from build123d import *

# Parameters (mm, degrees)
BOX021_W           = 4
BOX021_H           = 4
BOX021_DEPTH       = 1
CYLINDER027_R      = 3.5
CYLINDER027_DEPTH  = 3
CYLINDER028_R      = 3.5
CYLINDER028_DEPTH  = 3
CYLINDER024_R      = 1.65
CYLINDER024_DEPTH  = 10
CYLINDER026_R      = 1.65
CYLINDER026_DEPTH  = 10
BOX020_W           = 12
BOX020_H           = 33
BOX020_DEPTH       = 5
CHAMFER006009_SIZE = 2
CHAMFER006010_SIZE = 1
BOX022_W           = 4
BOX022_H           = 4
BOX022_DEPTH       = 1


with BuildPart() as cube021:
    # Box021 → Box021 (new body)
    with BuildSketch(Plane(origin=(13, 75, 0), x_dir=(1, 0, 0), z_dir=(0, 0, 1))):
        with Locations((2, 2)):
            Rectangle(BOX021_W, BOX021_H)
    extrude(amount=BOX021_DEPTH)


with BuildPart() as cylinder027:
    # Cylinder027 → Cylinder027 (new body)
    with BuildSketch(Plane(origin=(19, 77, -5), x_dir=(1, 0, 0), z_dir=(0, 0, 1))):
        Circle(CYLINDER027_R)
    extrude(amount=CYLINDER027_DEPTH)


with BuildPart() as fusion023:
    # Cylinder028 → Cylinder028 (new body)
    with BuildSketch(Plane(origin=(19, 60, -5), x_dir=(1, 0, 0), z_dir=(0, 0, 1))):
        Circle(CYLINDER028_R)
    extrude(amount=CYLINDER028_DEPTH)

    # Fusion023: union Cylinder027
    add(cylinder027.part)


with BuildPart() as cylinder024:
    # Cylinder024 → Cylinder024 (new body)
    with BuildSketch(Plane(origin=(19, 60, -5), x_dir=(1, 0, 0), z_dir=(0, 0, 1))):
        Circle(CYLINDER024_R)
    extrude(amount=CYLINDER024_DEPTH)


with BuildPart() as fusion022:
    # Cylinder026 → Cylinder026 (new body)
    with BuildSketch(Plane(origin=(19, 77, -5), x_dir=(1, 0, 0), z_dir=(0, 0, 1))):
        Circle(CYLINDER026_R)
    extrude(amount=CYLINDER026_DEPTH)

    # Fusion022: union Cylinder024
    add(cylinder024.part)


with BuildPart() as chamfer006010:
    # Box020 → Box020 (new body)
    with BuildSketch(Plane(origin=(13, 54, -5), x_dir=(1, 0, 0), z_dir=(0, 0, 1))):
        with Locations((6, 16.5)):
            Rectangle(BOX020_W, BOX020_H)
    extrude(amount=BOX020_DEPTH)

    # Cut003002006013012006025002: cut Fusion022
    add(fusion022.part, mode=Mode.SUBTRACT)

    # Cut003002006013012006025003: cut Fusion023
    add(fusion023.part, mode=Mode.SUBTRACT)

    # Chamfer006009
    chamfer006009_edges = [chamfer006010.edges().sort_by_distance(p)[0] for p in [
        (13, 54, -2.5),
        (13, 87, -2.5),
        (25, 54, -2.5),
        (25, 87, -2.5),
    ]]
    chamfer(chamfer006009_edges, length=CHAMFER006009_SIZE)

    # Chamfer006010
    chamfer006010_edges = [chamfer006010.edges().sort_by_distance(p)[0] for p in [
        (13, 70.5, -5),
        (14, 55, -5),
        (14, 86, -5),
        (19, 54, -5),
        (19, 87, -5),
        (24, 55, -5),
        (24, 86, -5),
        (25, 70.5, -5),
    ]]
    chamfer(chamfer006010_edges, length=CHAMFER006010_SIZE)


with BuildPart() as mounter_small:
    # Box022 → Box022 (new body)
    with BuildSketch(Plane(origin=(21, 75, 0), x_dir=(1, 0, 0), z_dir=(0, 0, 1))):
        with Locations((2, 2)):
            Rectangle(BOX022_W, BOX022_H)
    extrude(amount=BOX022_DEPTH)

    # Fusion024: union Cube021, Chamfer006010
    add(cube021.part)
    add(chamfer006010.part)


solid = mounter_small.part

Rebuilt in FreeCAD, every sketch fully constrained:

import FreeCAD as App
import Part
import Sketcher
from FreeCAD import Vector
Q = App.Units.Quantity


def edges_at(feature, points):
    """Names of the edges that pass closest to the given points."""
    edges = feature.Shape.Edges
    near = lambda p: min(range(len(edges)), key=lambda i: edges[i].distToShape(Part.Vertex(*p))[0])
    return sorted({f"Edge{near(p) + 1}" for p in points})


def add_polygon(sketch, points):
    """Adds a closed chain of lines whose ends are joined by coincident constraints."""
    first, n = sketch.GeometryCount, len(points)
    for a, b in zip(points, points[1:] + points[:1]):
        sketch.addGeometry(Part.LineSegment(App.Vector(*a, 0), App.Vector(*b, 0)), False)
    for i in range(n):
        sketch.addConstraint(Sketcher.Constraint("Coincident", first + i, 2, first + (i + 1) % n, 1))

doc = App.newDocument("Part")
body = doc.addObject("PartDesign::Body", "Body")

sketch1 = doc.addObject("Sketcher::SketchObject", "Sketch")
body.addObject(sketch1)
sketch1.AttachmentSupport = (doc.XY_Plane, [""])
sketch1.MapMode = "FlatFace"
add_polygon(sketch1, [(13, 79), (13, 75), (17, 75), (17, 79)])
sketch1.addConstraint([
    Sketcher.Constraint("Vertical", 0),
    Sketcher.Constraint("Horizontal", 1),
    Sketcher.Constraint("Vertical", 2),
    Sketcher.Constraint("Horizontal", 3),
    Sketcher.Constraint("Equal", 3, 0),
    Sketcher.Constraint("DistanceX", 1, 1, 1, 2, Q("4 mm")),
    Sketcher.Constraint("DistanceX", -1, 1, 0, 2, Q("13 mm")),
    Sketcher.Constraint("DistanceY", -1, 1, 0, 2, Q("75 mm")),
])
pad1 = doc.addObject("PartDesign::Pad", "Pad")
body.addObject(pad1)
pad1.Profile = sketch1
pad1.Length = 1
body2 = doc.addObject("PartDesign::Body", "Body001")

sketch2 = doc.addObject("Sketcher::SketchObject", "Sketch001")
body2.addObject(sketch2)
sketch2.AttachmentSupport = (doc.getObject("XY_Plane001"), [""])
sketch2.MapMode = "FlatFace"
sketch2.AttachmentOffset = App.Placement(Vector(0, 0, -5), App.Rotation())
sketch2.addGeometry(Part.Circle(Vector(19, 77, 0), Vector(0, 0, 1), 3.5), False)
sketch2.addConstraint([
    Sketcher.Constraint("Diameter", 0, Q("7 mm")),
    Sketcher.Constraint("DistanceX", -1, 1, 0, 3, Q("19 mm")),
    Sketcher.Constraint("DistanceY", -1, 1, 0, 3, Q("77 mm")),
])
pad2 = doc.addObject("PartDesign::Pad", "Pad001")
body2.addObject(pad2)
pad2.Profile = sketch2
pad2.Length = 3
body3 = doc.addObject("PartDesign::Body", "Body002")
body3.AllowCompound = True

sketch3 = doc.addObject("Sketcher::SketchObject", "Sketch002")
body3.addObject(sketch3)
sketch3.AttachmentSupport = (doc.getObject("XY_Plane002"), [""])
sketch3.MapMode = "FlatFace"
sketch3.AttachmentOffset = App.Placement(Vector(0, 0, -5), App.Rotation())
sketch3.addGeometry(Part.Circle(Vector(19, 60, 0), Vector(0, 0, 1), 3.5), False)
sketch3.addConstraint([
    Sketcher.Constraint("Diameter", 0, Q("7 mm")),
    Sketcher.Constraint("DistanceX", -1, 1, 0, 3, Q("19 mm")),
    Sketcher.Constraint("DistanceY", -1, 1, 0, 3, Q("60 mm")),
])
pad3 = doc.addObject("PartDesign::Pad", "Pad002")
body3.addObject(pad3)
pad3.Profile = sketch3
pad3.Length = 3
doc.recompute()

boolean = doc.addObject("PartDesign::Boolean", "Boolean")
body3.addObject(boolean)
boolean.Type = "Fuse"
boolean.addObjects([body2])
body4 = doc.addObject("PartDesign::Body", "Body003")

sketch4 = doc.addObject("Sketcher::SketchObject", "Sketch003")
body4.addObject(sketch4)
sketch4.AttachmentSupport = (doc.getObject("XY_Plane003"), [""])
sketch4.MapMode = "FlatFace"
sketch4.AttachmentOffset = App.Placement(Vector(0, 0, -5), App.Rotation())
sketch4.addGeometry(Part.Circle(Vector(19, 60, 0), Vector(0, 0, 1), 1.6), False)
sketch4.addConstraint([
    Sketcher.Constraint("Diameter", 0, Q("3.3 mm")),
    Sketcher.Constraint("DistanceX", -1, 1, 0, 3, Q("19 mm")),
    Sketcher.Constraint("DistanceY", -1, 1, 0, 3, Q("60 mm")),
])
pad4 = doc.addObject("PartDesign::Pad", "Pad003")
body4.addObject(pad4)
pad4.Profile = sketch4
pad4.Length = 10
body5 = doc.addObject("PartDesign::Body", "Body004")
body5.AllowCompound = True

sketch5 = doc.addObject("Sketcher::SketchObject", "Sketch004")
body5.addObject(sketch5)
sketch5.AttachmentSupport = (doc.getObject("XY_Plane004"), [""])
sketch5.MapMode = "FlatFace"
sketch5.AttachmentOffset = App.Placement(Vector(0, 0, -5), App.Rotation())
sketch5.addGeometry(Part.Circle(Vector(19, 77, 0), Vector(0, 0, 1), 1.6), False)
sketch5.addConstraint([
    Sketcher.Constraint("Diameter", 0, Q("3.3 mm")),
    Sketcher.Constraint("DistanceX", -1, 1, 0, 3, Q("19 mm")),
    Sketcher.Constraint("DistanceY", -1, 1, 0, 3, Q("77 mm")),
])
pad5 = doc.addObject("PartDesign::Pad", "Pad004")
body5.addObject(pad5)
pad5.Profile = sketch5
pad5.Length = 10
doc.recompute()

boolean2 = doc.addObject("PartDesign::Boolean", "Boolean001")
body5.addObject(boolean2)
boolean2.Type = "Fuse"
boolean2.addObjects([body4])
body6 = doc.addObject("PartDesign::Body", "Body005")

sketch6 = doc.addObject("Sketcher::SketchObject", "Sketch005")
body6.addObject(sketch6)
sketch6.AttachmentSupport = (doc.getObject("XY_Plane005"), [""])
sketch6.MapMode = "FlatFace"
sketch6.AttachmentOffset = App.Placement(Vector(0, 0, -5), App.Rotation())
add_polygon(sketch6, [(13, 87), (13, 54), (25, 54), (25, 87)])
sketch6.addConstraint([
    Sketcher.Constraint("Vertical", 0),
    Sketcher.Constraint("Horizontal", 1),
    Sketcher.Constraint("Vertical", 2),
    Sketcher.Constraint("Horizontal", 3),
    Sketcher.Constraint("DistanceX", 1, 1, 1, 2, Q("12 mm")),
    Sketcher.Constraint("DistanceY", 0, 2, 0, 1, Q("33 mm")),
    Sketcher.Constraint("DistanceX", -1, 1, 0, 2, Q("13 mm")),
    Sketcher.Constraint("DistanceY", -1, 1, 0, 2, Q("54 mm")),
])
pad6 = doc.addObject("PartDesign::Pad", "Pad005")
body6.addObject(pad6)
pad6.Profile = sketch6
pad6.Length = 5
doc.recompute()

boolean3 = doc.addObject("PartDesign::Boolean", "Boolean002")
body6.addObject(boolean3)
boolean3.Type = "Cut"
boolean3.addObjects([body5])
doc.recompute()

boolean4 = doc.addObject("PartDesign::Boolean", "Boolean003")
body6.addObject(boolean4)
boolean4.Type = "Cut"
boolean4.addObjects([body3])
doc.recompute()

chamfer = doc.addObject("PartDesign::Chamfer", "Chamfer")
body6.addObject(chamfer)
chamfer.Base = (boolean4, edges_at(boolean4, [
    (13, 54, -2.5),
    (13, 87, -2.5),
    (25, 54, -2.5),
    (25, 87, -2.5),
]))
chamfer.Size = 2
doc.recompute()

chamfer2 = doc.addObject("PartDesign::Chamfer", "Chamfer001")
body6.addObject(chamfer2)
chamfer2.Base = (chamfer, edges_at(chamfer, [
    (13, 70.5, -5),
    (14, 55, -5),
    (14, 86, -5),
    (19, 54, -5),
    (19, 87, -5),
    (24, 55, -5),
    (24, 86, -5),
    (25, 70.5, -5),
]))
chamfer2.Size = 1
body7 = doc.addObject("PartDesign::Body", "Body006")
body7.AllowCompound = True

sketch7 = doc.addObject("Sketcher::SketchObject", "Sketch006")
body7.addObject(sketch7)
sketch7.AttachmentSupport = (doc.getObject("XY_Plane006"), [""])
sketch7.MapMode = "FlatFace"
add_polygon(sketch7, [(21, 79), (21, 75), (25, 75), (25, 79)])
sketch7.addConstraint([
    Sketcher.Constraint("Vertical", 0),
    Sketcher.Constraint("Horizontal", 1),
    Sketcher.Constraint("Vertical", 2),
    Sketcher.Constraint("Horizontal", 3),
    Sketcher.Constraint("Equal", 3, 0),
    Sketcher.Constraint("DistanceX", 1, 1, 1, 2, Q("4 mm")),
    Sketcher.Constraint("DistanceX", -1, 1, 0, 2, Q("21 mm")),
    Sketcher.Constraint("DistanceY", -1, 1, 0, 2, Q("75 mm")),
])
pad7 = doc.addObject("PartDesign::Pad", "Pad006")
body7.addObject(pad7)
pad7.Profile = sketch7
pad7.Length = 1
doc.recompute()

boolean5 = doc.addObject("PartDesign::Boolean", "Boolean004")
body7.addObject(boolean5)
boolean5.Type = "Fuse"
boolean5.addObjects([body])
doc.recompute()

boolean6 = doc.addObject("PartDesign::Boolean", "Boolean005")
body7.addObject(boolean6)
boolean6.Type = "Fuse"
boolean6.addObjects([body6])

doc.recompute()
